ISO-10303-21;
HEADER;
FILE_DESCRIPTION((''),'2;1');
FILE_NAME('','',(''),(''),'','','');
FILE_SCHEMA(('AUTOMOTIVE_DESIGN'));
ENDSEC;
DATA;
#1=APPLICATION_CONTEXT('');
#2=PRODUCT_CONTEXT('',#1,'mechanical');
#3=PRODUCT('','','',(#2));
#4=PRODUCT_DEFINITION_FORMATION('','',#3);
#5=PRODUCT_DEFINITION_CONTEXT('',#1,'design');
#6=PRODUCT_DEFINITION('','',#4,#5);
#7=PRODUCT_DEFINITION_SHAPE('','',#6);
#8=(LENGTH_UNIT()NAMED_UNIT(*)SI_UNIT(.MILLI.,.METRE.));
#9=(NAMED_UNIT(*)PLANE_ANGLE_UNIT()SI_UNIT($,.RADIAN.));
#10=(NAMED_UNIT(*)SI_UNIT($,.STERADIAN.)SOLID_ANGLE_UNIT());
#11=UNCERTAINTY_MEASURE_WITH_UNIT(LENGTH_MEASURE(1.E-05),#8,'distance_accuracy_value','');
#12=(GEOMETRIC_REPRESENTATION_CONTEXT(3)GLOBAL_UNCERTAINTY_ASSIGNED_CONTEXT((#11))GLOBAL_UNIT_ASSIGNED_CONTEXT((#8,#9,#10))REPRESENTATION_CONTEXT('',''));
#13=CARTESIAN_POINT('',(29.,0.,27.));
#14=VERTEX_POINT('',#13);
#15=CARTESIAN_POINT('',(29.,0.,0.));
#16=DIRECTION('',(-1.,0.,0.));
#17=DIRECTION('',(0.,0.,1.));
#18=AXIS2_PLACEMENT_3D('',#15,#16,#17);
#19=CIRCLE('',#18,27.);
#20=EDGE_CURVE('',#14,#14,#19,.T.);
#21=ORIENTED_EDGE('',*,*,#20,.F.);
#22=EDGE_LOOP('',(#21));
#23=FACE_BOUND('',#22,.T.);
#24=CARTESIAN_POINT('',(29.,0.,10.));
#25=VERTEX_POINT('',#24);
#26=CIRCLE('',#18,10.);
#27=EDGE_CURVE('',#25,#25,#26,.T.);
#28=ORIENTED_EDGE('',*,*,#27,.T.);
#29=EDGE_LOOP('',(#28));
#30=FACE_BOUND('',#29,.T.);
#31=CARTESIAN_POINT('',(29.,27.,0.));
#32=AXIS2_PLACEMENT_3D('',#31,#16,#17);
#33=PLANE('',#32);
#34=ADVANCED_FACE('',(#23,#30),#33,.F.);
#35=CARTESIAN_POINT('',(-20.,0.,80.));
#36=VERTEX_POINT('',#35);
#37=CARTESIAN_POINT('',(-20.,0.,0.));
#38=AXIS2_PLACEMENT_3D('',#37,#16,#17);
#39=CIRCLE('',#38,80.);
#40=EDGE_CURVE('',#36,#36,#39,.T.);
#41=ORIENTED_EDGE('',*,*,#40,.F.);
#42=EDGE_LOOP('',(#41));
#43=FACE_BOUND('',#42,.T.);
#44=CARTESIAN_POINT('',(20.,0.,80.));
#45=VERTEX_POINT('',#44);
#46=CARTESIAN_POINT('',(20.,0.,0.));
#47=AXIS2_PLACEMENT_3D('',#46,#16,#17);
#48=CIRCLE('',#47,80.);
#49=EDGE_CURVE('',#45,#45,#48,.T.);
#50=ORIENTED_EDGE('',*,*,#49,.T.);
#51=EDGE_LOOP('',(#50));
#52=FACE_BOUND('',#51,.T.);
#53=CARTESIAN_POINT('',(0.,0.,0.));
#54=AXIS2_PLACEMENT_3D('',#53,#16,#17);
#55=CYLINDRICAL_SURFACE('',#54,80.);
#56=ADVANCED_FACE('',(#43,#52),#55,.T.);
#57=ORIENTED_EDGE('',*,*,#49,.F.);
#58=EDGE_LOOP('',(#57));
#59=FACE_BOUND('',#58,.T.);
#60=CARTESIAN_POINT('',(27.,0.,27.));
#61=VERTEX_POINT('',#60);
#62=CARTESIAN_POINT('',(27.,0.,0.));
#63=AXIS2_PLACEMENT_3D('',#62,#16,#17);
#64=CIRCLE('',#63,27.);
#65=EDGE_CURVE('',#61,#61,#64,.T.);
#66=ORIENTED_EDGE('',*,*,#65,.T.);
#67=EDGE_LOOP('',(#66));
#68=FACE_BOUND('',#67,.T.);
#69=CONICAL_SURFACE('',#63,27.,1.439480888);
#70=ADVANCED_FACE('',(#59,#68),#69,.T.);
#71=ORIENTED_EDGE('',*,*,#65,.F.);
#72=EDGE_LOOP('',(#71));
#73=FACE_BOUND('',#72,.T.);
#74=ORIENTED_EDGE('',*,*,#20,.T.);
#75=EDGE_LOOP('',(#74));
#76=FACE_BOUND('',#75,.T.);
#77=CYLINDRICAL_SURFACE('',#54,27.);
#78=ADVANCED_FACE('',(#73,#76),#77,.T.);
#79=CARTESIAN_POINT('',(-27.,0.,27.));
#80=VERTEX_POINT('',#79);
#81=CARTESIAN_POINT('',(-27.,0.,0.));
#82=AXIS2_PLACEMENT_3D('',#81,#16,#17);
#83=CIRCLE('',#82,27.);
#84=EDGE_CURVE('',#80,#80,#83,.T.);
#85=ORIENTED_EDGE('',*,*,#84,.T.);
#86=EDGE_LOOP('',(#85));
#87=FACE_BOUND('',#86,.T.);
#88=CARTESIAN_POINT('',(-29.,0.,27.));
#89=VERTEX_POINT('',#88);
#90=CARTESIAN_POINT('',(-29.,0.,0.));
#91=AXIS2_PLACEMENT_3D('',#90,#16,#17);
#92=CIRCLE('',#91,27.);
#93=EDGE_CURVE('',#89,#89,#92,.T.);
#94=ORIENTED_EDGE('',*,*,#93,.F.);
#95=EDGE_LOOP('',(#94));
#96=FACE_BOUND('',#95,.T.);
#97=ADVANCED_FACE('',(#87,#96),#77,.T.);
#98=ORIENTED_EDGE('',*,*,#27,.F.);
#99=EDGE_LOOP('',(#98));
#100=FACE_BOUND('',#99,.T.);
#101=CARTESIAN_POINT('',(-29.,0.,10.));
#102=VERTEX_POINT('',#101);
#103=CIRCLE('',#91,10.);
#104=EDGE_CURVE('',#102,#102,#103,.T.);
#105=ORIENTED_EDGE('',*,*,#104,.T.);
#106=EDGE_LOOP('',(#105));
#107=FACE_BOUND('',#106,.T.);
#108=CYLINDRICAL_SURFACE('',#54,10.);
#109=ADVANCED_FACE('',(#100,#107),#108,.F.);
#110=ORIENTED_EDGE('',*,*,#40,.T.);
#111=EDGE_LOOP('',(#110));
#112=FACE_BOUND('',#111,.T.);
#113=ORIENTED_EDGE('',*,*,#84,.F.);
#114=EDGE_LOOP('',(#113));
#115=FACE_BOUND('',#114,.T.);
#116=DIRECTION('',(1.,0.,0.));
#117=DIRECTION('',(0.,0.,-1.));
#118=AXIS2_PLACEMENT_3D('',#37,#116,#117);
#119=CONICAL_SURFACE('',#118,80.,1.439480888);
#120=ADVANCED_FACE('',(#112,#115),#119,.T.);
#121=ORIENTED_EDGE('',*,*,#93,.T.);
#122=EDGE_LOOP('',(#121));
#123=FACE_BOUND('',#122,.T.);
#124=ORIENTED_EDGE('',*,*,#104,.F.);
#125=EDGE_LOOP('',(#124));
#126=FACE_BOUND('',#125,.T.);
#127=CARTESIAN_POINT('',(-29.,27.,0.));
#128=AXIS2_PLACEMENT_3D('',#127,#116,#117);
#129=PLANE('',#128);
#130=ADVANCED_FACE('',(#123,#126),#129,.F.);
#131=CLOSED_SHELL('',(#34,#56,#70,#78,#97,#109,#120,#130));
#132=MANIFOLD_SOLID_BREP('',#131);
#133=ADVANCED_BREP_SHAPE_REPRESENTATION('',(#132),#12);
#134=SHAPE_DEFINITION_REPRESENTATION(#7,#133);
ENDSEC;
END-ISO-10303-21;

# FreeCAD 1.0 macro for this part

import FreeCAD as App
import Part
import Sketcher

V = App.Vector

doc = App.newDocument("Part")
body = doc.addObject("PartDesign::Body", "Body")

sketch1 = doc.addObject("Sketcher::SketchObject", "Sketch")
body.addObject(sketch1)
sketch1.AttachmentSupport = (doc.XY_Plane, [""])
sketch1.MapMode = "FlatFace"
sketch1.addGeometry(Part.LineSegment(V(20, 80, 0), V(-20, 80, 0)), False)
sketch1.addGeometry(Part.LineSegment(V(-20, 80, 0), V(-27, 27, 0)), False)
sketch1.addGeometry(Part.LineSegment(V(-27, 27, 0), V(-29, 27, 0)), False)
sketch1.addGeometry(Part.LineSegment(V(-29, 27, 0), V(-29, 10, 0)), False)
sketch1.addGeometry(Part.LineSegment(V(-29, 10, 0), V(29, 10, 0)), False)
sketch1.addGeometry(Part.LineSegment(V(29, 10, 0), V(29, 27, 0)), False)
sketch1.addGeometry(Part.LineSegment(V(29, 27, 0), V(27, 27, 0)), False)
sketch1.addGeometry(Part.LineSegment(V(27, 27, 0), V(20, 80, 0)), False)
sketch1.addConstraint(Sketcher.Constraint("Coincident", 0, 2, 1, 1))
sketch1.addConstraint(Sketcher.Constraint("Coincident", 1, 2, 2, 1))
sketch1.addConstraint(Sketcher.Constraint("Coincident", 2, 2, 3, 1))
sketch1.addConstraint(Sketcher.Constraint("Coincident", 3, 2, 4, 1))
sketch1.addConstraint(Sketcher.Constraint("Coincident", 4, 2, 5, 1))
sketch1.addConstraint(Sketcher.Constraint("Coincident", 5, 2, 6, 1))
sketch1.addConstraint(Sketcher.Constraint("Coincident", 6, 2, 7, 1))
sketch1.addConstraint(Sketcher.Constraint("Coincident", 7, 2, 0, 1))
sketch1.addConstraint(Sketcher.Constraint("Horizontal", 0))
sketch1.addConstraint(Sketcher.Constraint("Horizontal", 2))
sketch1.addConstraint(Sketcher.Constraint("Vertical", 3))
sketch1.addConstraint(Sketcher.Constraint("Horizontal", 4))
sketch1.addConstraint(Sketcher.Constraint("Vertical", 5))
sketch1.addConstraint(Sketcher.Constraint("Horizontal", 6))
sketch1.addConstraint(Sketcher.Constraint("Symmetric", 2, 2, 5, 2, -2))
sketch1.addConstraint(Sketcher.Constraint("Equal", 2, 6))
sketch1.addConstraint(Sketcher.Constraint("Equal", 1, 7))
sketch1.addConstraint(Sketcher.Constraint("DistanceX", 0, 2, 0, 1, 40.0))
sketch1.addConstraint(Sketcher.Constraint("DistanceX", 2, 2, 2, 1, 2.0))
sketch1.addConstraint(Sketcher.Constraint("DistanceX", 4, 1, 4, 2, 58.0))
sketch1.addConstraint(Sketcher.Constraint("DistanceY", 3, 2, 3, 1, 17.0))
sketch1.addConstraint(Sketcher.Constraint("DistanceY", -1, 1, 0, 2, 80.0))
sketch1.addConstraint(Sketcher.Constraint("DistanceY", -1, 1, 1, 2, 27.0))
revolution = doc.addObject("PartDesign::Revolution", "Revolution")
body.addObject(revolution)
revolution.Profile = sketch1
revolution.ReferenceAxis = (sketch1, ["H_Axis"])
revolution.Angle = 360

doc.recompute()
